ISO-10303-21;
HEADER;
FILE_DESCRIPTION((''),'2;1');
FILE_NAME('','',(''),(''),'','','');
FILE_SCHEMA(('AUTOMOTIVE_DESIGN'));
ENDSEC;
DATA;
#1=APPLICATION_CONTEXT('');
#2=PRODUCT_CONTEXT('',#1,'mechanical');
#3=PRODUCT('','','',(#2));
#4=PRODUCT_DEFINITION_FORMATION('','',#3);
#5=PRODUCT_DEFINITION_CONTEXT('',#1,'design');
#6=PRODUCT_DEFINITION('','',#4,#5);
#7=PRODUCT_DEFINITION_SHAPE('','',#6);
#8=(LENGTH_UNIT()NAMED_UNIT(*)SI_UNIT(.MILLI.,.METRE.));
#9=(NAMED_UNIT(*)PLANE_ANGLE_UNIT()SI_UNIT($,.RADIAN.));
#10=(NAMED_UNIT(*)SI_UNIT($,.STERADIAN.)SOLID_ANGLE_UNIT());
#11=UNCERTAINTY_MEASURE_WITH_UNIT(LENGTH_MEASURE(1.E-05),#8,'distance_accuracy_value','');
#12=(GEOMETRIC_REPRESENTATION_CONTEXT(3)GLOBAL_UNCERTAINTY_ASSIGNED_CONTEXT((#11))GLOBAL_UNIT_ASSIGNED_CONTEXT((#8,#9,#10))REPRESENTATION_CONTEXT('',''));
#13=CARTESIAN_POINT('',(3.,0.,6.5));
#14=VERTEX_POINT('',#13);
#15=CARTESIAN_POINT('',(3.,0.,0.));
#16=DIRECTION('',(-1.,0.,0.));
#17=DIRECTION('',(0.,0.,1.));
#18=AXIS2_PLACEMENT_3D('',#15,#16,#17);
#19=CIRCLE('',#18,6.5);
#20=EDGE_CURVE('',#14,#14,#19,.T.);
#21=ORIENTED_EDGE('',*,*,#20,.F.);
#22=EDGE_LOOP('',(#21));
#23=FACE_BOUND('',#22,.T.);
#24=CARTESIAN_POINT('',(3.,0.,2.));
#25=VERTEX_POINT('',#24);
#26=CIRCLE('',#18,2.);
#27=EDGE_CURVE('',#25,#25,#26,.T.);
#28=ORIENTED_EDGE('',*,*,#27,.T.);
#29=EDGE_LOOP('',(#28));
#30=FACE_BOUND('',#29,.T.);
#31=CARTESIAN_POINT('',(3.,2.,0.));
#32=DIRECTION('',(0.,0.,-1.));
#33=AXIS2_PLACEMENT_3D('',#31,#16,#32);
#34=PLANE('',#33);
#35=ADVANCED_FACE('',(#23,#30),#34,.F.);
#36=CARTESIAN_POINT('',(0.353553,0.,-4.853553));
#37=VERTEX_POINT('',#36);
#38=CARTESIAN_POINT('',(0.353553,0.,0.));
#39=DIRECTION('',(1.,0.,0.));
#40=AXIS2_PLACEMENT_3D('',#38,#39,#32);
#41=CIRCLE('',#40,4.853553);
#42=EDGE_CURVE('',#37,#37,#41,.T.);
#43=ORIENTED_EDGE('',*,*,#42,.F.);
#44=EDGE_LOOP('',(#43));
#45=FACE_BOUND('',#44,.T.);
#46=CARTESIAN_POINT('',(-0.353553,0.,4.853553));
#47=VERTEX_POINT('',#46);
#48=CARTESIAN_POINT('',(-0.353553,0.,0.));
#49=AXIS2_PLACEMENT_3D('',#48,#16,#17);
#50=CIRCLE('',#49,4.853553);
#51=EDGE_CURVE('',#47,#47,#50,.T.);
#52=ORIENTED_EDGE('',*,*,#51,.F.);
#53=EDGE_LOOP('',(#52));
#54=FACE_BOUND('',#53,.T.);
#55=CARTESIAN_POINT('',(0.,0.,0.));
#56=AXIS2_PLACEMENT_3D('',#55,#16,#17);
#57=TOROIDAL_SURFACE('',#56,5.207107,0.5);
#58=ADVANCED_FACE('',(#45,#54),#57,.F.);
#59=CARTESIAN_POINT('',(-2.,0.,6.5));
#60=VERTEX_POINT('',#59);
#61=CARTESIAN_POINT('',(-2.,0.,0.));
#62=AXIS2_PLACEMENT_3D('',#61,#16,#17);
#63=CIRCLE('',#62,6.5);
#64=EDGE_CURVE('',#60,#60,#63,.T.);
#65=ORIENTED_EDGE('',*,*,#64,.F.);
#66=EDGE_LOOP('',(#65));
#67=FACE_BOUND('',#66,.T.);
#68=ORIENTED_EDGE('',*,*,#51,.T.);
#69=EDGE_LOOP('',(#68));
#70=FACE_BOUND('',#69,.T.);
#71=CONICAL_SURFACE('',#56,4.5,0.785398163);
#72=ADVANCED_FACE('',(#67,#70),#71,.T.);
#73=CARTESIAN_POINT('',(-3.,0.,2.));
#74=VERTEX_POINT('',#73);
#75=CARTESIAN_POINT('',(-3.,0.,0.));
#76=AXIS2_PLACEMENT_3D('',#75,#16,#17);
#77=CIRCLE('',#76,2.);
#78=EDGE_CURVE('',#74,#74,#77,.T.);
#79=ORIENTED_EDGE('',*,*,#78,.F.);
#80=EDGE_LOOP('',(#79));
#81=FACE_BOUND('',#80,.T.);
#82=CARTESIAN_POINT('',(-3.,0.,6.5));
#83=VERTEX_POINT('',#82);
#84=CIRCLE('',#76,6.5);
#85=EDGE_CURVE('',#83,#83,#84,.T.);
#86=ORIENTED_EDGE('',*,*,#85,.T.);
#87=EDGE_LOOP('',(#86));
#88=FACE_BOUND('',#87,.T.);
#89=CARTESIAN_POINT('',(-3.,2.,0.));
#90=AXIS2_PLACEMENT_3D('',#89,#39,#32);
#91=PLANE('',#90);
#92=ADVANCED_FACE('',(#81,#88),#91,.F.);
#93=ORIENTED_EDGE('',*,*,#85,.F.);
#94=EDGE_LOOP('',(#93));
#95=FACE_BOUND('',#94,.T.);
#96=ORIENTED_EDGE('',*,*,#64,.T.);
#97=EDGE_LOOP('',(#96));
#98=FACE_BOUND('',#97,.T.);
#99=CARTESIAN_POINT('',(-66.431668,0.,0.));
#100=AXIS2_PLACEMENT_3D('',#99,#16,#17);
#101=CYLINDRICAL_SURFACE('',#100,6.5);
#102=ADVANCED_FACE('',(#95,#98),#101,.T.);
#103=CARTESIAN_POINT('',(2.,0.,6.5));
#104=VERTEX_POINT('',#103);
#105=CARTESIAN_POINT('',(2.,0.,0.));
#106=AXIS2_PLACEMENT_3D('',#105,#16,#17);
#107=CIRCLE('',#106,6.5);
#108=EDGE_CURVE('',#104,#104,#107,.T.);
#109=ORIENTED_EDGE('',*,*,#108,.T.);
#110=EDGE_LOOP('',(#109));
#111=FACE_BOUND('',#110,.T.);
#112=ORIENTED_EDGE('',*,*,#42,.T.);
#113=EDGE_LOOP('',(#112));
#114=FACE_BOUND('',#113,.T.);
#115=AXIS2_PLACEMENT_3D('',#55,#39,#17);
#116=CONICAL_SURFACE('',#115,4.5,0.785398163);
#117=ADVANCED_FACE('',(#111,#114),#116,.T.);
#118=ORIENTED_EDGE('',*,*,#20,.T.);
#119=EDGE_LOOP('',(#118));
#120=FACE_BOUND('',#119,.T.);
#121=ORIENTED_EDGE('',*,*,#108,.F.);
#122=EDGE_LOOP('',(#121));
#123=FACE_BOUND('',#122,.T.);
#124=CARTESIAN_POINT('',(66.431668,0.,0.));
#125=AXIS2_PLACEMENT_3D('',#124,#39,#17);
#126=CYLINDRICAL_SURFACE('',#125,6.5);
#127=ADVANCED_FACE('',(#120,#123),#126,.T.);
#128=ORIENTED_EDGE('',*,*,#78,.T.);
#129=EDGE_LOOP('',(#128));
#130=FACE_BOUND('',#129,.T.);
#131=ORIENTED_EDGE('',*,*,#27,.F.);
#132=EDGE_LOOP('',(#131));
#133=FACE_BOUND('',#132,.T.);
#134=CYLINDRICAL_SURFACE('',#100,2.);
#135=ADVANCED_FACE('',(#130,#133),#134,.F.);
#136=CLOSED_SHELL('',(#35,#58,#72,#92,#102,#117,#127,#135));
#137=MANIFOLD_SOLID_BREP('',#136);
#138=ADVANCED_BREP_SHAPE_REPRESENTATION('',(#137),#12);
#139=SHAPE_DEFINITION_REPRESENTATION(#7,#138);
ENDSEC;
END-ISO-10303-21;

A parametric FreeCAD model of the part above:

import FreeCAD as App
import Part
import Sketcher

V = App.Vector
Q = App.Units.Quantity


def edges_at(feature, points):
    """Names of the edges that pass closest to the given points."""
    edges = feature.Shape.Edges
    near = lambda p: min(range(len(edges)), key=lambda i: edges[i].distToShape(Part.Vertex(*p))[0])
    return sorted({f"Edge{near(p) + 1}" for p in points})


def add_polygon(sketch, points):
    """Adds a closed chain of lines whose ends are joined by coincident constraints."""
    first, n = sketch.GeometryCount, len(points)
    for a, b in zip(points, points[1:] + points[:1]):
        sketch.addGeometry(Part.LineSegment(App.Vector(*a, 0), App.Vector(*b, 0)), False)
    for i in range(n):
        sketch.addConstraint(Sketcher.Constraint("Coincident", first + i, 2, first + (i + 1) % n, 1))

doc = App.newDocument("Part")
params = doc.addObject("Spreadsheet::Sheet", "Params")
for row, (alias, value) in enumerate([
    ("sketch1_width", "3 mm"),
    ("sketch1_width2", "1 mm"),
    ("sketch1_height", "2.5 mm"),
    ("revolution_angle", "360 deg"),
    ("fillet_radius", "0.5 mm"),
], start=1):
    params.set(f"A{row}", alias)
    params.set(f"B{row}", "=" + value)
    params.setAlias(f"B{row}", alias)

body = doc.addObject("PartDesign::Body", "Body")

sketch1 = doc.addObject("Sketcher::SketchObject", "Sketch")
body.addObject(sketch1)
sketch1.AttachmentSupport = (doc.XY_Plane, [""])
sketch1.MapMode = "FlatFace"
add_polygon(sketch1, [(-3, 2), (0, 2), (0, 4.5), (-2, 6.5), (-3, 6.5)])
sketch1.addConstraint(Sketcher.Constraint("Horizontal", 0))
sketch1.addConstraint(Sketcher.Constraint("Vertical", 1))
sketch1.addConstraint(Sketcher.Constraint("Horizontal", 3))
sketch1.addConstraint(Sketcher.Constraint("Vertical", 4))
sketch1.addConstraint(Sketcher.Constraint("PointOnObject", 0, 2, -2))
sketch1.addConstraint(Sketcher.Constraint("DistanceX", 0, 1, 0, 2, Q("3 mm")))
sketch1.addConstraint(Sketcher.Constraint("DistanceX", 3, 2, 3, 1, Q("1 mm")))
sketch1.addConstraint(Sketcher.Constraint("Angle", 2, Q("135 deg")))
sketch1.addConstraint(Sketcher.Constraint("DistanceY", 1, 1, 1, 2, Q("2.5 mm")))
sketch1.addConstraint(Sketcher.Constraint("DistanceY", -1, 1, 0, 2, Q("2 mm")))
sketch1.setExpression("Constraints[10]", "Params.sketch1_width")
sketch1.setExpression("Constraints[11]", "Params.sketch1_width2")
sketch1.setExpression("Constraints[13]", "Params.sketch1_height")
revolution = doc.addObject("PartDesign::Revolution", "Revolution")
body.addObject(revolution)
revolution.Profile = sketch1
revolution.ReferenceAxis = (sketch1, ["H_Axis"])
revolution.setExpression("Angle", "Params.revolution_angle")
doc.recompute()

mirrored = doc.addObject("PartDesign::Mirrored", "Mirrored")
body.addObject(mirrored)
mirrored.Originals = [revolution]
mirrored.MirrorPlane = (doc.YZ_Plane, [""])
body.Tip = mirrored
doc.recompute()

fillet = doc.addObject("PartDesign::Fillet", "Fillet")
body.addObject(fillet)
fillet.Base = (mirrored, edges_at(mirrored, [(0, 0, -4.5)]))
fillet.setExpression("Radius", "Params.fillet_radius")

doc.recompute()
